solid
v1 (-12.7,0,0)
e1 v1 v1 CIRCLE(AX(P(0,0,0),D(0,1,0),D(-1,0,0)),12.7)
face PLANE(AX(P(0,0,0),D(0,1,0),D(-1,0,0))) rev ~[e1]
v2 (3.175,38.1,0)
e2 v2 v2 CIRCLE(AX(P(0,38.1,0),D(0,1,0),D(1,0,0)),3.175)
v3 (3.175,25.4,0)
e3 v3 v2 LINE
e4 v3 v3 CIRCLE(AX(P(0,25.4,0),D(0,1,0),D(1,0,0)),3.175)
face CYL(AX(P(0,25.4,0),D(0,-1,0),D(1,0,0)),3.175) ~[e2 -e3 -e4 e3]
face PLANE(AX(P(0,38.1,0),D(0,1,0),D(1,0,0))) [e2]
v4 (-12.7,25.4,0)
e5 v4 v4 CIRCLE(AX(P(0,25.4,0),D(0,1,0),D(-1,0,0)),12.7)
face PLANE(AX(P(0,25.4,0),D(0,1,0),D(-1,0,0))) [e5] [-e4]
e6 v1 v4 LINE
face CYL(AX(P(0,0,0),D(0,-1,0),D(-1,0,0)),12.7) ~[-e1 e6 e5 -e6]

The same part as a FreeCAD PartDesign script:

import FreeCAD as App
import Part
import Sketcher
from FreeCAD import Vector
Q = App.Units.Quantity

doc = App.newDocument("Part")
params = doc.addObject("Spreadsheet::Sheet", "Params")
for row, (alias, value) in enumerate([
    ("sketch1_diameter", "1 in"),
    ("pad1_length", "1 in"),
    ("sketch2_diameter", "0.25 in"),
    ("pad2_length", "0.5 in"),
], start=1):
    params.set(f"A{row}", alias)
    params.set(f"B{row}", "=" + value)
    params.setAlias(f"B{row}", alias)

body = doc.addObject("PartDesign::Body", "Body")

sketch1 = body.newObject("Sketcher::SketchObject", "Sketch")
sketch1.AttachmentSupport = (doc.getObject("XZ_Plane"), [""])
sketch1.MapMode = "FlatFace"
sketch1.addGeometry(Part.Circle(Vector(0, 0, 0), Vector(0, 0, 1), 12.7), False)
sketch1.addConstraint(Sketcher.Constraint("Coincident", 0, 3, -1, 1))
sketch1.addConstraint(Sketcher.Constraint("Diameter", 0, Q("1 in")))
sketch1.setExpression("Constraints[1]", "Params.sketch1_diameter")
pad1 = body.newObject("PartDesign::Pad", "Pad")
pad1.Profile = sketch1
pad1.setExpression("Length", "Params.pad1_length")
pad1.Reversed = True

sketch2 = body.newObject("Sketcher::SketchObject", "Sketch001")
sketch2.AttachmentSupport = (doc.getObject("XZ_Plane"), [""])
sketch2.MapMode = "FlatFace"
sketch2.AttachmentOffset = App.Placement(Vector(0, 0, -1 * 25.4), App.Rotation())
sketch2.addGeometry(Part.Circle(Vector(0, 0, 0), Vector(0, 0, 1), 3.175), False)
sketch2.addConstraint(Sketcher.Constraint("Coincident", 0, 3, -1, 1))
sketch2.addConstraint(Sketcher.Constraint("Diameter", 0, Q("0.25 in")))
sketch2.setExpression("Constraints[1]", "Params.sketch2_diameter")
pad2 = body.newObject("PartDesign::Pad", "Pad001")
pad2.Profile = sketch2
pad2.setExpression("Length", "Params.pad2_length")
pad2.Reversed = True

doc.recompute()
